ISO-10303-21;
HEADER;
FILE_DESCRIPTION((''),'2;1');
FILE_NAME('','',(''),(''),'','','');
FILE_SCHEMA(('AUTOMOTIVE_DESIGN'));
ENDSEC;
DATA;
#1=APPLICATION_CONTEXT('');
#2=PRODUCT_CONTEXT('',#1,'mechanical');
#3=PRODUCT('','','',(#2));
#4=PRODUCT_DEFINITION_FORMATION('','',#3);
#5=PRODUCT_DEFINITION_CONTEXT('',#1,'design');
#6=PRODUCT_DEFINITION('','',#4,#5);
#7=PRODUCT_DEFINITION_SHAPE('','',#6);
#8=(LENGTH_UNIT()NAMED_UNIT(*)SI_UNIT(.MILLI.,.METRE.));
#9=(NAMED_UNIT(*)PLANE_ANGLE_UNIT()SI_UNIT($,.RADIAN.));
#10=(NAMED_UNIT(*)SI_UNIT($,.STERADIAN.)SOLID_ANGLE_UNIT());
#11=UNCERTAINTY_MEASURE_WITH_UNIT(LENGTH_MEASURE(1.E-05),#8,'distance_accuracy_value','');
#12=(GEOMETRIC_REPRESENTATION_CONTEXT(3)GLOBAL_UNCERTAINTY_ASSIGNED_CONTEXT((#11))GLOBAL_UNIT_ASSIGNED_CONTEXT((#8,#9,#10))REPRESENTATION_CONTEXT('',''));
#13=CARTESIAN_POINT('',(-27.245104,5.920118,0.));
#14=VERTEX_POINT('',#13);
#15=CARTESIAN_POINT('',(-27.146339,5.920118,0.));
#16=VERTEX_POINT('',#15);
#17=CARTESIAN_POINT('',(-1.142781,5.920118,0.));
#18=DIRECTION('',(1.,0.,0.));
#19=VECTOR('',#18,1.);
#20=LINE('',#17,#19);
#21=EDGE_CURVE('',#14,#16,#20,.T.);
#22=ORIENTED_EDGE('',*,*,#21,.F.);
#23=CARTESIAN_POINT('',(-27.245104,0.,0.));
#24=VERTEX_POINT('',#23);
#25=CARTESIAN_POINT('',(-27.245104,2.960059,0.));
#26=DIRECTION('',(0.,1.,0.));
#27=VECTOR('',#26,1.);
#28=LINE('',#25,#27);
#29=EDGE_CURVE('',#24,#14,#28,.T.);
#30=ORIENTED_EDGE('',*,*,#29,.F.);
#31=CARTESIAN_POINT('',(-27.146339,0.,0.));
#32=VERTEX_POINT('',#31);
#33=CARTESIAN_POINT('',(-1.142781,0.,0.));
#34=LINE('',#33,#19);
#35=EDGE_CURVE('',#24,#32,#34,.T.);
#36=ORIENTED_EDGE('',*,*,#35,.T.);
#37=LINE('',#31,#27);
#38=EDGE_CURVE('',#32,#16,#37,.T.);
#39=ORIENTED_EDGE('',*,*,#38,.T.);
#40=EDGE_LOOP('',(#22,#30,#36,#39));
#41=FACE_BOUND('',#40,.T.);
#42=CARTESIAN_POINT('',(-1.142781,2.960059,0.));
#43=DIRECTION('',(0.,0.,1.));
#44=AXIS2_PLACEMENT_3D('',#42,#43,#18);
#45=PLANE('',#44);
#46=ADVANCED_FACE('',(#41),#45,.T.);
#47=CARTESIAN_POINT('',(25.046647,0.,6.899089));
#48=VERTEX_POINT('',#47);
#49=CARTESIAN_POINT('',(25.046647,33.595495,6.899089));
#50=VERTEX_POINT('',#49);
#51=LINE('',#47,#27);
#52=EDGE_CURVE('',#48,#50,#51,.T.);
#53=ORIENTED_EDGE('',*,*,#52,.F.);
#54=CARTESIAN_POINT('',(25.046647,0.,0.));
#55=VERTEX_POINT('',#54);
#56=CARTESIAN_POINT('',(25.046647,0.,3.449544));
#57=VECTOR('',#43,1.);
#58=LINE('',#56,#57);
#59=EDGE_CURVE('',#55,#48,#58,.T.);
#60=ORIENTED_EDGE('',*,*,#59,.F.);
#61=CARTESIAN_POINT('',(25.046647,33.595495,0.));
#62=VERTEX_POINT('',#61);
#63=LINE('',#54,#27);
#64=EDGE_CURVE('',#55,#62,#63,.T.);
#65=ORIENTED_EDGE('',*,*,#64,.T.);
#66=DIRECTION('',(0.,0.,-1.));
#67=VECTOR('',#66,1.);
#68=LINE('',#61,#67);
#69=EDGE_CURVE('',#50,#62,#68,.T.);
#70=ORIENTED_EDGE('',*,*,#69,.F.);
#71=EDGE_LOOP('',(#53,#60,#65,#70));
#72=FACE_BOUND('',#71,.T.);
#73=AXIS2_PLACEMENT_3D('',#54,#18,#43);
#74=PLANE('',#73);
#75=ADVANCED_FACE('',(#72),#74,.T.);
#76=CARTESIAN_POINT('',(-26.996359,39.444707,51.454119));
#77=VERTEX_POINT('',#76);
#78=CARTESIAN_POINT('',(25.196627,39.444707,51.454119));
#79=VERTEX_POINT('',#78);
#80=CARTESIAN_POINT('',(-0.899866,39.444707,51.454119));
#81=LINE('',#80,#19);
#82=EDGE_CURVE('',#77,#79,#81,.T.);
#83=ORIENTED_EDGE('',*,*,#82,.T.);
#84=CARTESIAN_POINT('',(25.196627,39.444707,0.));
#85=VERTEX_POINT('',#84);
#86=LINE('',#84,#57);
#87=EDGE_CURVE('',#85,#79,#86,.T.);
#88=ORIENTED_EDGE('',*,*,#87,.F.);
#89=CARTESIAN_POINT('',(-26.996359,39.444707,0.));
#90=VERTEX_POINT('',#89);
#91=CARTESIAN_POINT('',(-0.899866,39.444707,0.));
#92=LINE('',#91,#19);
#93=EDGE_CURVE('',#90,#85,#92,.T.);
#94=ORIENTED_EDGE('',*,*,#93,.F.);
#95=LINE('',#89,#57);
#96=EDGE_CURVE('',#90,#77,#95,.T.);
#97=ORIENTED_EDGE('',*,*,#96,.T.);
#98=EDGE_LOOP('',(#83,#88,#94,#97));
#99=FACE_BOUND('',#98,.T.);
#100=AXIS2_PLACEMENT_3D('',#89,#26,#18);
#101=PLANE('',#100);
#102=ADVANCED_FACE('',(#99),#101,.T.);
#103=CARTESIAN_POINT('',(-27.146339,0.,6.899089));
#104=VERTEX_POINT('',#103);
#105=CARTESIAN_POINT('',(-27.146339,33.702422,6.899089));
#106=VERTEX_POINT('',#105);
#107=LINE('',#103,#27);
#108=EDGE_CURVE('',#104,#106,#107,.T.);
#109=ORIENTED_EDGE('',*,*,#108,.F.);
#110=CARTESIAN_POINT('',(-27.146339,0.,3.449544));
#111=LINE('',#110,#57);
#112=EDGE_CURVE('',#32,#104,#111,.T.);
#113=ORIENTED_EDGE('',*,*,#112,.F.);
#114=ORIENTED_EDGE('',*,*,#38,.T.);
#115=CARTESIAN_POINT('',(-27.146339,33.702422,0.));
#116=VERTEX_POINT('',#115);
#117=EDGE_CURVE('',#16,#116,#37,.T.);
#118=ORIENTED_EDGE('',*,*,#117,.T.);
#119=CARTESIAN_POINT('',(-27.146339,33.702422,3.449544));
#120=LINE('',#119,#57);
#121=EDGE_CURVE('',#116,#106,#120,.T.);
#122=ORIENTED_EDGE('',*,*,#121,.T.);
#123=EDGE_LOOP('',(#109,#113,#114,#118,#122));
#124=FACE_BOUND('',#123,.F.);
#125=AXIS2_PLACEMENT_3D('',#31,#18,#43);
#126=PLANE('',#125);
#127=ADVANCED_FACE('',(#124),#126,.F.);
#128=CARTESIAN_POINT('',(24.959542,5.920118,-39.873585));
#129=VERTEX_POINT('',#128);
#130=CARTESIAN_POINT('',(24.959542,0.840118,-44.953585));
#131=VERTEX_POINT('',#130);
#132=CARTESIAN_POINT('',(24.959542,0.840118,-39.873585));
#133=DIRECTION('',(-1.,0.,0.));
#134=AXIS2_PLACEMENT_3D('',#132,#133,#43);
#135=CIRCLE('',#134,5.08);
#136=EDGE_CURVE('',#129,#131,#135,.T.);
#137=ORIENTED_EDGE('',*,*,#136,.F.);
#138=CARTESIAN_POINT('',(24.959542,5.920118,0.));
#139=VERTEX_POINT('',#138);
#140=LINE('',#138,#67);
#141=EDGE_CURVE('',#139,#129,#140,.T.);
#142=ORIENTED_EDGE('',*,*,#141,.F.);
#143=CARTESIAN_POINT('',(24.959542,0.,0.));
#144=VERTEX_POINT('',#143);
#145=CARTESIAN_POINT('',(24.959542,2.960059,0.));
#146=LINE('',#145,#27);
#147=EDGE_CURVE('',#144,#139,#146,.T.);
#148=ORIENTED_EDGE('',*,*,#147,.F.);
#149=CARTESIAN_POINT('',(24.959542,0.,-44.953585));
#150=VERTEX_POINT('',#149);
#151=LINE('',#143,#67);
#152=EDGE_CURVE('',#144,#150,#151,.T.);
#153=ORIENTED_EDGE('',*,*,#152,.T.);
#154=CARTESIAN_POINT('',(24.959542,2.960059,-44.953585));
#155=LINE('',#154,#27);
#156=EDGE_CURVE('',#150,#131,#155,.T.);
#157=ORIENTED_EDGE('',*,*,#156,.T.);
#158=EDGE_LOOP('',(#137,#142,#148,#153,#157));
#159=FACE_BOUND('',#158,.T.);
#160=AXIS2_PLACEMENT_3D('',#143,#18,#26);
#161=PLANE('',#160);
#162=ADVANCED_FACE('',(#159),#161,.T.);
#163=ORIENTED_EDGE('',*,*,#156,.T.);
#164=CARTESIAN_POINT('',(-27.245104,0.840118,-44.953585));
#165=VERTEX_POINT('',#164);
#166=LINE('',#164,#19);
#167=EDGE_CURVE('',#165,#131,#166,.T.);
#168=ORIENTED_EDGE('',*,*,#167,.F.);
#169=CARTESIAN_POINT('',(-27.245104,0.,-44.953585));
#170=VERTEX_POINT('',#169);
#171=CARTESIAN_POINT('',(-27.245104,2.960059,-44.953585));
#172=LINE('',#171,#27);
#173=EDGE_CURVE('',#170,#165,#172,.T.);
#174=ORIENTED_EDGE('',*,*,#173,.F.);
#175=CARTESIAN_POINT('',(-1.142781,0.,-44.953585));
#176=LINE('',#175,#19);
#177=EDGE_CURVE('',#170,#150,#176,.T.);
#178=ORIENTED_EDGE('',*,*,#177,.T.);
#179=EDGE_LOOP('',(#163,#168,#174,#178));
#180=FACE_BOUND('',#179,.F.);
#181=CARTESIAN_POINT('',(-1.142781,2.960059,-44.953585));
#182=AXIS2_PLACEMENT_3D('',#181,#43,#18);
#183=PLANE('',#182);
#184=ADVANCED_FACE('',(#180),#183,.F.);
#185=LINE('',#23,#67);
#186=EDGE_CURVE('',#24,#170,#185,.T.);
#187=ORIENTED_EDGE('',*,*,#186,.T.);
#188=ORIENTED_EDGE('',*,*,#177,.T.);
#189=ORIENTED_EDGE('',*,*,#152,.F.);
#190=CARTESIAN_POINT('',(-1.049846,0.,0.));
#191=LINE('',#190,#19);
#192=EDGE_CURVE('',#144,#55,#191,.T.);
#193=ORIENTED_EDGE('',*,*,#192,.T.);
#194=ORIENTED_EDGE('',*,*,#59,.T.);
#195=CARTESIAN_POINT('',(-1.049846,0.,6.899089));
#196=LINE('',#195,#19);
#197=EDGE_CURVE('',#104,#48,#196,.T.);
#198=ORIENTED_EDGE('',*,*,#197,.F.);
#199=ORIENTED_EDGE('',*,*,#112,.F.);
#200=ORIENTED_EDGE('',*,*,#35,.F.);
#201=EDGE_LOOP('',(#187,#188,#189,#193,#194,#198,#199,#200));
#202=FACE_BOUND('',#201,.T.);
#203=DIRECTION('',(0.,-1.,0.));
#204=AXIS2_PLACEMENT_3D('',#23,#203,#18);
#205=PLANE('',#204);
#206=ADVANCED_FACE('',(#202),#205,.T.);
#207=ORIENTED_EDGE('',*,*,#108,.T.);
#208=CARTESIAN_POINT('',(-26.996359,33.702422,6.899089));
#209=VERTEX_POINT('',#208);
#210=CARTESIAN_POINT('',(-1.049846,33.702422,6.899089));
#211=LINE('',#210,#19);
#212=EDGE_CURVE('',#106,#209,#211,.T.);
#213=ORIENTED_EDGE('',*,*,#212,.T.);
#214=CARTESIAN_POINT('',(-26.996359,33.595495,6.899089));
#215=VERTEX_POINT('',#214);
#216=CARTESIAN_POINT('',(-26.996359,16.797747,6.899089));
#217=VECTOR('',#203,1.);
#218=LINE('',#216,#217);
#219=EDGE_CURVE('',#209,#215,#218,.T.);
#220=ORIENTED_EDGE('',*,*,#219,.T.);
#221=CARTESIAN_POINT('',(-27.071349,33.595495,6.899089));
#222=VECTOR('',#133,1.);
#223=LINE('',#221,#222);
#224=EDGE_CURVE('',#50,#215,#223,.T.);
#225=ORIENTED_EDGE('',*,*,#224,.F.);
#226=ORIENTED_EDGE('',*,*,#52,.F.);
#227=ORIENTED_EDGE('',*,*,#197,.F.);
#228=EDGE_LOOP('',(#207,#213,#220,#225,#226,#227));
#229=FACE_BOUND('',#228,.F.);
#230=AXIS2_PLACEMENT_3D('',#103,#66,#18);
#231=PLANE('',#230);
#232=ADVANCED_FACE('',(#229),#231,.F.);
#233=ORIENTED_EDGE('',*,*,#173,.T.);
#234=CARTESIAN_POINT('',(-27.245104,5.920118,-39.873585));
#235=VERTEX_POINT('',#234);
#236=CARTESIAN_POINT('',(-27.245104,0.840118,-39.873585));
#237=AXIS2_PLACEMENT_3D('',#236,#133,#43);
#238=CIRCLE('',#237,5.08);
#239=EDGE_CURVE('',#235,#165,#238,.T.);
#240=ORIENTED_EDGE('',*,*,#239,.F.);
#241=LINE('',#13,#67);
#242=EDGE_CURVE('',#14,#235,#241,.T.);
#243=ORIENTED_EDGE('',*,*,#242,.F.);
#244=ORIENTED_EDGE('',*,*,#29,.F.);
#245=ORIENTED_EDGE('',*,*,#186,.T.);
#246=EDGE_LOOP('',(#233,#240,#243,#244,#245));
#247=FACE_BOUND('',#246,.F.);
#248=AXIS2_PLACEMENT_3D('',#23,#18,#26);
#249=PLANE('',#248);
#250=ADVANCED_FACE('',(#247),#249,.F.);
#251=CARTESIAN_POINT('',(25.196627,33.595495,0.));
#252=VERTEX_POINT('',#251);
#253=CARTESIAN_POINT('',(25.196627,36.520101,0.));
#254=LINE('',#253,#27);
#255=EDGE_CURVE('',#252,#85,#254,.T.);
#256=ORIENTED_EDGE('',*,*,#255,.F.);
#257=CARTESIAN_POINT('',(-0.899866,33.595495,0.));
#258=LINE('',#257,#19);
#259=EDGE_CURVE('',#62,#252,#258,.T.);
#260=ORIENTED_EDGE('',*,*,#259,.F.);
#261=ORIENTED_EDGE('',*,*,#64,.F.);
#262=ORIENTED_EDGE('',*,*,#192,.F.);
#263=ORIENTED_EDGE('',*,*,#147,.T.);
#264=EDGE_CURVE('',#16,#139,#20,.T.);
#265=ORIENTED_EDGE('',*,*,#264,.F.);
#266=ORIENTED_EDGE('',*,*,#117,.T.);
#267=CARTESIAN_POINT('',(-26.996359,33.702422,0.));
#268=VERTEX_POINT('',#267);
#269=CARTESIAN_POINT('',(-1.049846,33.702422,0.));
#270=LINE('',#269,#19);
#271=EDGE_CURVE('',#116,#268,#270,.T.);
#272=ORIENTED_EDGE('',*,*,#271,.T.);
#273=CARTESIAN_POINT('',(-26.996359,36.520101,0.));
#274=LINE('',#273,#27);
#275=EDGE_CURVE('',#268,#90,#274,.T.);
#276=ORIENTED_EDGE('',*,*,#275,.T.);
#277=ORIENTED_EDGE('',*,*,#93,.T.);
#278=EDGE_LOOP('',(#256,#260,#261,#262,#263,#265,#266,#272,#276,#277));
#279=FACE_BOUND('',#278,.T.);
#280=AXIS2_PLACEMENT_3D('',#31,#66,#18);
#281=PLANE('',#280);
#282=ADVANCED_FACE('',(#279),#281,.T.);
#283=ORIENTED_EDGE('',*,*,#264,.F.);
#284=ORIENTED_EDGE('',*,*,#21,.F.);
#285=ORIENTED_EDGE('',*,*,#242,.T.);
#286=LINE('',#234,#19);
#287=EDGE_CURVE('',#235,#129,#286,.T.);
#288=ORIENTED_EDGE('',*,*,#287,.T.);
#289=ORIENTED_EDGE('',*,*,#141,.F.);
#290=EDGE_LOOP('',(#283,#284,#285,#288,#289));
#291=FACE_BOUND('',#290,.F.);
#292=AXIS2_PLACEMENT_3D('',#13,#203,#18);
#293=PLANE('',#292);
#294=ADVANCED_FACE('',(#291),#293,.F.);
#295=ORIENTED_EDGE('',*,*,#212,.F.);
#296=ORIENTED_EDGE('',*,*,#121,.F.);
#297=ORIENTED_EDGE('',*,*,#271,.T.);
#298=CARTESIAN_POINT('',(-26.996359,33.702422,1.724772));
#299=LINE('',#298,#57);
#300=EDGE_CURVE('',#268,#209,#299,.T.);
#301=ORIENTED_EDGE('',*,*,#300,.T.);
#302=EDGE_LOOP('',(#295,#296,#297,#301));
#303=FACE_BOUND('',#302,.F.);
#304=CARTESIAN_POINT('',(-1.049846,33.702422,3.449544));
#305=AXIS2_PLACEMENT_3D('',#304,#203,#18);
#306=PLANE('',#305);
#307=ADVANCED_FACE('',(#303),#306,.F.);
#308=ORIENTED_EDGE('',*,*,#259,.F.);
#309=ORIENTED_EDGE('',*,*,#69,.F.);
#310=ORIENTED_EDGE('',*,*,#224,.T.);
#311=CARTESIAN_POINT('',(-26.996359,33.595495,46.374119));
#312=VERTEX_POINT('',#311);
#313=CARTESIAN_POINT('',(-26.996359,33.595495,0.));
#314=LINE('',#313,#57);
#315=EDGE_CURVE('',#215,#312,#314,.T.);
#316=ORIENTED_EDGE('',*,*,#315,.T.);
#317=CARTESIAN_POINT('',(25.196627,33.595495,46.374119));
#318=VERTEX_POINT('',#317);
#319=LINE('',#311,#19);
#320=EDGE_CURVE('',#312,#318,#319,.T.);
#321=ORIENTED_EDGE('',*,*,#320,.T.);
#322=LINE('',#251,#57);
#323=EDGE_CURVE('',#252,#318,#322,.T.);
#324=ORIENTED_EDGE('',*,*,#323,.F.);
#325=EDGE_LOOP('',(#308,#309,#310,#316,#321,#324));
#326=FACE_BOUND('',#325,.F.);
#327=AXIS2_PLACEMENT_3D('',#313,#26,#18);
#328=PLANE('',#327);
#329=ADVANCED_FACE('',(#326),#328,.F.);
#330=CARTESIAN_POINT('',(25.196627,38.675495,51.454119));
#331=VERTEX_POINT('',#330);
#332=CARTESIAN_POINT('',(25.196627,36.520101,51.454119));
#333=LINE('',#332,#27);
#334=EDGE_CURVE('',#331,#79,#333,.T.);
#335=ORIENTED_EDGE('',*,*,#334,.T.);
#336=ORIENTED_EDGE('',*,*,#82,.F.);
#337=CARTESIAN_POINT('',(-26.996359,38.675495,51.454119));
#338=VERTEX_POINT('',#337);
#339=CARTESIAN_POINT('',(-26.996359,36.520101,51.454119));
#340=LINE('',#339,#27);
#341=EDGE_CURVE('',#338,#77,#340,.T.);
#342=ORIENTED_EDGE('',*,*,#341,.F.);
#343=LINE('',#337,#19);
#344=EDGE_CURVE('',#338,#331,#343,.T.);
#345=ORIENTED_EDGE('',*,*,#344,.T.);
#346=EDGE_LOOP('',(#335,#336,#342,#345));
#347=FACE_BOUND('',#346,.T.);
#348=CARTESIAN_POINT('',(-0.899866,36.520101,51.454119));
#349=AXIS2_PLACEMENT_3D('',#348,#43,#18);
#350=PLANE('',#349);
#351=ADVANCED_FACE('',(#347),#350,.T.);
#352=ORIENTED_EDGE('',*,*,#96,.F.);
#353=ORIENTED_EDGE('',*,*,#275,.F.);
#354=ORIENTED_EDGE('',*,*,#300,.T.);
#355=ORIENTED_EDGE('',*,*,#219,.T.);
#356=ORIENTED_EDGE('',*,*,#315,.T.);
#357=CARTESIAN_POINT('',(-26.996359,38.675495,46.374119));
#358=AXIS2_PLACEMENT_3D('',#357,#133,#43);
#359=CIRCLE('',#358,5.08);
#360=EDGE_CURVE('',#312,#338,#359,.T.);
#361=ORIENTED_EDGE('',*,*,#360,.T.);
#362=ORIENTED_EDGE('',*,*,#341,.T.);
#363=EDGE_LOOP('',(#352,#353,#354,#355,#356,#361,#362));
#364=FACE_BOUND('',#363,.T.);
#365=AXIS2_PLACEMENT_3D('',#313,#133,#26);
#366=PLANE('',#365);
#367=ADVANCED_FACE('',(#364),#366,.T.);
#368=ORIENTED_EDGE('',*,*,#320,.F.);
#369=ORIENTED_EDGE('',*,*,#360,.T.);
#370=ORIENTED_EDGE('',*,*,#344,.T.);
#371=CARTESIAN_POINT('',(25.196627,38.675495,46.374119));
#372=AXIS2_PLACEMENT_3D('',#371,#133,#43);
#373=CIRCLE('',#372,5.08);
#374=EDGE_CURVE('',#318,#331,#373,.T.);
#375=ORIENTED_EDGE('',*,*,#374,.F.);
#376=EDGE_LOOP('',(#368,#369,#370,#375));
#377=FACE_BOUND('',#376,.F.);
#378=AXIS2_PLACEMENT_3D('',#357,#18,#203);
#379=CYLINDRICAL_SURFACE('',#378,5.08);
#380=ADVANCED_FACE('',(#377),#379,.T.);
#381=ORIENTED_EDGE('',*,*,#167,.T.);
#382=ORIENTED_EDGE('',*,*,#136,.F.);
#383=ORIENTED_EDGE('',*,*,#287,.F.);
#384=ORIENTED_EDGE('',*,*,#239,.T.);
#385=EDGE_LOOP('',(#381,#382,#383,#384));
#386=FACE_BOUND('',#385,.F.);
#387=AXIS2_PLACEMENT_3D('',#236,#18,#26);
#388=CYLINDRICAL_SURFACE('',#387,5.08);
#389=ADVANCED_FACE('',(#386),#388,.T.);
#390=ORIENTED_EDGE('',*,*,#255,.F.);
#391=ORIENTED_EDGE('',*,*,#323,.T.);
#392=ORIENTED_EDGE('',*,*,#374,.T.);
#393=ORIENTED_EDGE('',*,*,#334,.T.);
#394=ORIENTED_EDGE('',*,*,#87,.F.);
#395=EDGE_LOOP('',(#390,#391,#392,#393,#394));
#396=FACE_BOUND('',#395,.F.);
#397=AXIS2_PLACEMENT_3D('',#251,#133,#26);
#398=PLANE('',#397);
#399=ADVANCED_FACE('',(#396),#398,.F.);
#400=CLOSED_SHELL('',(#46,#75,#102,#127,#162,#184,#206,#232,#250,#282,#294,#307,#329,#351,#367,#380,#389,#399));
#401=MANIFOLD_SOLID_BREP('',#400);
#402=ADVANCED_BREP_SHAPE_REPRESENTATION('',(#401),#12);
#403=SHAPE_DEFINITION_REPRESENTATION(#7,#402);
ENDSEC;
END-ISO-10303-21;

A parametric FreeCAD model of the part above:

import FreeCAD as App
import Part
import Sketcher

V = App.Vector


def edges_at(feature, points):
    """Names of the edges that pass closest to the given points."""
    edges = feature.Shape.Edges
    near = lambda p: min(range(len(edges)), key=lambda i: edges[i].distToShape(Part.Vertex(*p))[0])
    return sorted({f"Edge{near(p) + 1}" for p in points})


def add_polygon(sketch, points):
    """Adds a closed chain of lines whose ends are joined by coincident constraints."""
    first, n = sketch.GeometryCount, len(points)
    for a, b in zip(points, points[1:] + points[:1]):
        sketch.addGeometry(Part.LineSegment(App.Vector(*a, 0), App.Vector(*b, 0)), False)
    for i in range(n):
        sketch.addConstraint(Sketcher.Constraint("Coincident", first + i, 2, first + (i + 1) % n, 1))

doc = App.newDocument("Part")
params = doc.addObject("Spreadsheet::Sheet", "Params")
for row, (alias, value) in enumerate([
    ("pad1_length", "51.454119 mm"),
    ("pad2_length", "33.702422 mm"),
    ("pad3_length", "44.953585 mm"),
    ("fillet_radius", "0.2 in"),
    ("fillet2_radius", "0.2 in"),
], start=1):
    params.set(f"A{row}", alias)
    params.set(f"B{row}", "=" + value)
    params.setAlias(f"B{row}", alias)

body = doc.addObject("PartDesign::Body", "Body")

# Sketch on XY plane
sketch1 = body.newObject("Sketcher::SketchObject", "Sketch")
sketch1.AttachmentSupport = (doc.getObject("XY_Plane"), [""])
sketch1.MapMode = "FlatFace"
add_polygon(sketch1, [(-27, 39), (-27, 34), (25, 34), (25, 39)])  # lines 0-3
sketch1.addConstraint(Sketcher.Constraint("Vertical", 0))
sketch1.addConstraint(Sketcher.Constraint("Horizontal", 1))
sketch1.addConstraint(Sketcher.Constraint("Vertical", 2))
sketch1.addConstraint(Sketcher.Constraint("Horizontal", 3))
sketch1.addConstraint(Sketcher.Constraint("DistanceX", 1, 1, 1, 2, 52.192986))
sketch1.addConstraint(Sketcher.Constraint("DistanceY", 0, 2, 0, 1, 5.849212))
sketch1.addConstraint(Sketcher.Constraint("DistanceX", 0, 2, -1, 1, 26.996359))
sketch1.addConstraint(Sketcher.Constraint("DistanceY", -1, 1, 0, 2, 33.595495))
pad1 = body.newObject("PartDesign::Pad", "Pad")
pad1.Profile = sketch1
pad1.setExpression("Length", "Params.pad1_length")

# Sketch on XZ plane
sketch2 = body.newObject("Sketcher::SketchObject", "Sketch001")
sketch2.AttachmentSupport = (doc.getObject("XZ_Plane"), [""])
sketch2.MapMode = "FlatFace"
add_polygon(sketch2, [(-27, 7), (-27, 0), (25, 0), (25, 7)])  # lines 0-3
sketch2.addConstraint(Sketcher.Constraint("Vertical", 0))
sketch2.addConstraint(Sketcher.Constraint("Horizontal", 1))
sketch2.addConstraint(Sketcher.Constraint("Vertical", 2))
sketch2.addConstraint(Sketcher.Constraint("Horizontal", 3))
sketch2.addConstraint(Sketcher.Constraint("PointOnObject", 0, 2, -1))
sketch2.addConstraint(Sketcher.Constraint("DistanceY", 0, 2, 0, 1, 6.899089))
sketch2.addConstraint(Sketcher.Constraint("DistanceX", 1, 1, 1, 2, 52.192986))
sketch2.addConstraint(Sketcher.Constraint("DistanceX", 0, 2, -1, 1, 27.146339))
pad2 = body.newObject("PartDesign::Pad", "Pad001")
pad2.Profile = sketch2
pad2.setExpression("Length", "Params.pad2_length")
pad2.Reversed = True

# Sketch on XY plane
sketch3 = body.newObject("Sketcher::SketchObject", "Sketch002")
sketch3.AttachmentSupport = (doc.getObject("XY_Plane"), [""])
sketch3.MapMode = "FlatFace"
add_polygon(sketch3, [(-27, 6), (-27, 0), (25, 0), (25, 6)])  # lines 0-3
sketch3.addConstraint(Sketcher.Constraint("Vertical", 0))
sketch3.addConstraint(Sketcher.Constraint("Horizontal", 1))
sketch3.addConstraint(Sketcher.Constraint("Vertical", 2))
sketch3.addConstraint(Sketcher.Constraint("Horizontal", 3))
sketch3.addConstraint(Sketcher.Constraint("PointOnObject", 0, 2, -1))
sketch3.addConstraint(Sketcher.Constraint("DistanceX", 1, 1, 1, 2, 52.204646))
sketch3.addConstraint(Sketcher.Constraint("DistanceY", 0, 2, 0, 1, 5.920118))
sketch3.addConstraint(Sketcher.Constraint("DistanceX", -1, 1, 1, 2, 24.959542))
pad3 = body.newObject("PartDesign::Pad", "Pad002")
pad3.Profile = sketch3
pad3.setExpression("Length", "Params.pad3_length")
pad3.Reversed = True
doc.recompute()

fillet = body.newObject("PartDesign::Fillet", "Fillet")
fillet.Base = (pad3, edges_at(pad3, [(-1.143, 5.92, -44.954)]))
fillet.setExpression("Radius", "Params.fillet_radius")
doc.recompute()

fillet2 = body.newObject("PartDesign::Fillet", "Fillet001")
fillet2.Base = (fillet, edges_at(fillet, [(-0.9, 33.595, 51.454)]))
fillet2.setExpression("Radius", "Params.fillet2_radius")

doc.recompute()
